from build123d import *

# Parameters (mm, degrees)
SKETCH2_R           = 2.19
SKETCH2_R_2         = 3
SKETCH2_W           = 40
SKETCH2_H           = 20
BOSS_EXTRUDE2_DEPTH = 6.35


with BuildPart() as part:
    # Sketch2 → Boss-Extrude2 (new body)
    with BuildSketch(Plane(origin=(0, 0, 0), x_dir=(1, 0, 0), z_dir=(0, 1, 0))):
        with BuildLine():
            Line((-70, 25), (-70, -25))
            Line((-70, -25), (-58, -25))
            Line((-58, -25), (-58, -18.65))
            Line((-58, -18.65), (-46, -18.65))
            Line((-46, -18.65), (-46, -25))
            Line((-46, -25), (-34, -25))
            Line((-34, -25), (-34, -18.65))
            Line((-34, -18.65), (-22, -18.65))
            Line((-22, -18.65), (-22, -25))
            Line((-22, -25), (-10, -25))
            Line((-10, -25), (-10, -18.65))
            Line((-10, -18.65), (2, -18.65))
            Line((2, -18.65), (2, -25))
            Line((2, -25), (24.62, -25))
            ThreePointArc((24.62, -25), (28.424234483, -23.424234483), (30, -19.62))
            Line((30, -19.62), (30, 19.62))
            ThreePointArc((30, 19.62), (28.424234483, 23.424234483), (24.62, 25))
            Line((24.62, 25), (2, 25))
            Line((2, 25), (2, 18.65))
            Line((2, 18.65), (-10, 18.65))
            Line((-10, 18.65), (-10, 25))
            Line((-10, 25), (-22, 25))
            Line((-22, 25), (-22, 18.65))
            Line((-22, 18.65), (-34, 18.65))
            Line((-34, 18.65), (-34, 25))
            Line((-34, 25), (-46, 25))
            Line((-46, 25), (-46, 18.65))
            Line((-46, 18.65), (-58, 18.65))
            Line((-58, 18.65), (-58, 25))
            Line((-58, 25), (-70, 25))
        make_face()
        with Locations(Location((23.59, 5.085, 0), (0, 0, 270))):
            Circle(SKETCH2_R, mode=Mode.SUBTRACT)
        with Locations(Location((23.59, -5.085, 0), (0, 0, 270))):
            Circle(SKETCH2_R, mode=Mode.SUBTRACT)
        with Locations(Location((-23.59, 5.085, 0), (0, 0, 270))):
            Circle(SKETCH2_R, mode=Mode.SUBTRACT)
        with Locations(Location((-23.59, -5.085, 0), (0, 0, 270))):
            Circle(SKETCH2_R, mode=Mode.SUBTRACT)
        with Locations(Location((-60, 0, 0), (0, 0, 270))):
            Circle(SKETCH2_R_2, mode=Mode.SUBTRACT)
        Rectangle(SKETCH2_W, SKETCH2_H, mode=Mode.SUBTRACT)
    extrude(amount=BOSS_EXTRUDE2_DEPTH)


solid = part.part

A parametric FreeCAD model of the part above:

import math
import FreeCAD as App
import Part
import Sketcher
Q = App.Units.Quantity


def add_polygon(sketch, points):
    """Adds a closed chain of lines whose ends are joined by coincident constraints."""
    first, n = sketch.GeometryCount, len(points)
    for a, b in zip(points, points[1:] + points[:1]):
        sketch.addGeometry(Part.LineSegment(App.Vector(*a, 0), App.Vector(*b, 0)), False)
    for i in range(n):
        sketch.addConstraint(Sketcher.Constraint("Coincident", first + i, 2, first + (i + 1) % n, 1))

doc = App.newDocument("Part")
body = doc.addObject("PartDesign::Body", "Body")

# Sketch on XZ plane
sketch1 = body.newObject("Sketcher::SketchObject", "Sketch")
sketch1.AttachmentSupport = (doc.getObject("XZ_Plane"), [""])
sketch1.MapMode = "FlatFace"
sketch1.addGeometry(Part.LineSegment(App.Vector(-70, -25, 0), App.Vector(-70, 25, 0)), False)  # 0
sketch1.addGeometry(Part.LineSegment(App.Vector(-70, 25, 0), App.Vector(-58, 25, 0)), False)  # 1
sketch1.addGeometry(Part.LineSegment(App.Vector(-58, 25, 0), App.Vector(-58, 18.6, 0)), False)  # 2
sketch1.addGeometry(Part.LineSegment(App.Vector(-58, 18.6, 0), App.Vector(-46, 18.6, 0)), False)  # 3
sketch1.addGeometry(Part.LineSegment(App.Vector(-46, 18.6, 0), App.Vector(-46, 25, 0)), False)  # 4
sketch1.addGeometry(Part.LineSegment(App.Vector(-46, 25, 0), App.Vector(-34, 25, 0)), False)  # 5
sketch1.addGeometry(Part.LineSegment(App.Vector(-34, 25, 0), App.Vector(-34, 18.6, 0)), False)  # 6
sketch1.addGeometry(Part.LineSegment(App.Vector(-34, 18.6, 0), App.Vector(-22, 18.6, 0)), False)  # 7
sketch1.addGeometry(Part.LineSegment(App.Vector(-22, 18.6, 0), App.Vector(-22, 25, 0)), False)  # 8
sketch1.addGeometry(Part.LineSegment(App.Vector(-22, 25, 0), App.Vector(-10, 25, 0)), False)  # 9
sketch1.addGeometry(Part.LineSegment(App.Vector(-10, 25, 0), App.Vector(-10, 18.6, 0)), False)  # 10
sketch1.addGeometry(Part.LineSegment(App.Vector(-10, 18.6, 0), App.Vector(2, 18.6, 0)), False)  # 11
sketch1.addGeometry(Part.LineSegment(App.Vector(2, 18.6, 0), App.Vector(2, 25, 0)), False)  # 12
sketch1.addGeometry(Part.LineSegment(App.Vector(2, 25, 0), App.Vector(24.6, 25, 0)), False)  # 13
sketch1.addGeometry(Part.ArcOfCircle(Part.Circle(App.Vector(24.6, 19.6, 0), App.Vector(0, 0, 1), 5.4), math.radians(0), math.radians(90)), False)  # 14
sketch1.addGeometry(Part.LineSegment(App.Vector(30, 19.6, 0), App.Vector(30, -19.6, 0)), False)  # 15
sketch1.addGeometry(Part.ArcOfCircle(Part.Circle(App.Vector(24.6, -19.6, 0), App.Vector(0, 0, 1), 5.4), math.radians(-90), math.radians(0)), False)  # 16
sketch1.addGeometry(Part.LineSegment(App.Vector(24.6, -25, 0), App.Vector(2, -25, 0)), False)  # 17
sketch1.addGeometry(Part.LineSegment(App.Vector(2, -25, 0), App.Vector(2, -18.6, 0)), False)  # 18
sketch1.addGeometry(Part.LineSegment(App.Vector(2, -18.6, 0), App.Vector(-10, -18.6, 0)), False)  # 19
sketch1.addGeometry(Part.LineSegment(App.Vector(-10, -18.6, 0), App.Vector(-10, -25, 0)), False)  # 20
sketch1.addGeometry(Part.LineSegment(App.Vector(-10, -25, 0), App.Vector(-22, -25, 0)), False)  # 21
sketch1.addGeometry(Part.LineSegment(App.Vector(-22, -25, 0), App.Vector(-22, -18.6, 0)), False)  # 22
sketch1.addGeometry(Part.LineSegment(App.Vector(-22, -18.6, 0), App.Vector(-34, -18.6, 0)), False)  # 23
sketch1.addGeometry(Part.LineSegment(App.Vector(-34, -18.6, 0), App.Vector(-34, -25, 0)), False)  # 24
sketch1.addGeometry(Part.LineSegment(App.Vector(-34, -25, 0), App.Vector(-46, -25, 0)), False)  # 25
sketch1.addGeometry(Part.LineSegment(App.Vector(-46, -25, 0), App.Vector(-46, -18.6, 0)), False)  # 26
sketch1.addGeometry(Part.LineSegment(App.Vector(-46, -18.6, 0), App.Vector(-58, -18.6, 0)), False)  # 27
sketch1.addGeometry(Part.LineSegment(App.Vector(-58, -18.6, 0), App.Vector(-58, -25, 0)), False)  # 28
sketch1.addGeometry(Part.LineSegment(App.Vector(-58, -25, 0), App.Vector(-70, -25, 0)), False)  # 29
sketch1.addGeometry(Part.Circle(App.Vector(-23.6, 5.1, 0), App.Vector(0, 0, 1), 2.2), False)  # 30
sketch1.addGeometry(Part.Circle(App.Vector(23.6, 5.1, 0), App.Vector(0, 0, 1), 2.2), False)  # 31
sketch1.addGeometry(Part.Circle(App.Vector(-60, 0, 0), App.Vector(0, 0, 1), 3), False)  # 32
sketch1.addGeometry(Part.Circle(App.Vector(-23.6, -5.1, 0), App.Vector(0, 0, 1), 2.2), False)  # 33
add_polygon(sketch1, [(20, 10), (-20, 10), (-20, -10), (20, -10)])  # lines 34-37
sketch1.addGeometry(Part.Circle(App.Vector(23.6, -5.1, 0), App.Vector(0, 0, 1), 2.2), False)  # 38
sketch1.addConstraint([
    Sketcher.Constraint("Coincident", 0, 2, 1, 1),
    Sketcher.Constraint("Coincident", 1, 2, 2, 1),
    Sketcher.Constraint("Coincident", 2, 2, 3, 1),
    Sketcher.Constraint("Coincident", 3, 2, 4, 1),
    Sketcher.Constraint("Coincident", 4, 2, 5, 1),
    Sketcher.Constraint("Coincident", 5, 2, 6, 1),
    Sketcher.Constraint("Coincident", 6, 2, 7, 1),
    Sketcher.Constraint("Coincident", 7, 2, 8, 1),
    Sketcher.Constraint("Coincident", 8, 2, 9, 1),
    Sketcher.Constraint("Coincident", 9, 2, 10, 1),
    Sketcher.Constraint("Coincident", 10, 2, 11, 1),
    Sketcher.Constraint("Coincident", 11, 2, 12, 1),
    Sketcher.Constraint("Coincident", 12, 2, 13, 1),
    Sketcher.Constraint("Tangent", 13, 2, 14, 2),
    Sketcher.Constraint("Tangent", 14, 1, 15, 1),
    Sketcher.Constraint("Tangent", 15, 2, 16, 2),
    Sketcher.Constraint("Tangent", 16, 1, 17, 1),
    Sketcher.Constraint("Coincident", 17, 2, 18, 1),
    Sketcher.Constraint("Coincident", 18, 2, 19, 1),
    Sketcher.Constraint("Coincident", 19, 2, 20, 1),
    Sketcher.Constraint("Coincident", 20, 2, 21, 1),
    Sketcher.Constraint("Coincident", 21, 2, 22, 1),
    Sketcher.Constraint("Coincident", 22, 2, 23, 1),
    Sketcher.Constraint("Coincident", 23, 2, 24, 1),
    Sketcher.Constraint("Coincident", 24, 2, 25, 1),
    Sketcher.Constraint("Coincident", 25, 2, 26, 1),
    Sketcher.Constraint("Coincident", 26, 2, 27, 1),
    Sketcher.Constraint("Coincident", 27, 2, 28, 1),
    Sketcher.Constraint("Coincident", 28, 2, 29, 1),
    Sketcher.Constraint("Coincident", 29, 2, 0, 1),
    Sketcher.Constraint("Vertical", 0),
    Sketcher.Constraint("Horizontal", 1),
    Sketcher.Constraint("Vertical", 2),
    Sketcher.Constraint("Horizontal", 3),
    Sketcher.Constraint("Vertical", 4),
    Sketcher.Constraint("Horizontal", 5),
    Sketcher.Constraint("Vertical", 6),
    Sketcher.Constraint("Horizontal", 7),
    Sketcher.Constraint("Vertical", 8),
    Sketcher.Constraint("Horizontal", 9),
    Sketcher.Constraint("Vertical", 10),
    Sketcher.Constraint("Horizontal", 11),
    Sketcher.Constraint("Vertical", 12),
    Sketcher.Constraint("Horizontal", 13),
    Sketcher.Constraint("Vertical", 15),
    Sketcher.Constraint("Horizontal", 17),
    Sketcher.Constraint("Vertical", 18),
    Sketcher.Constraint("Horizontal", 19),
    Sketcher.Constraint("Vertical", 20),
    Sketcher.Constraint("Horizontal", 21),
    Sketcher.Constraint("Vertical", 22),
    Sketcher.Constraint("Horizontal", 23),
    Sketcher.Constraint("Vertical", 24),
    Sketcher.Constraint("Horizontal", 25),
    Sketcher.Constraint("Vertical", 26),
    Sketcher.Constraint("Horizontal", 27),
    Sketcher.Constraint("Vertical", 28),
    Sketcher.Constraint("Horizontal", 29),
    Sketcher.Constraint("Horizontal", 34),
    Sketcher.Constraint("Vertical", 35),
    Sketcher.Constraint("Horizontal", 36),
    Sketcher.Constraint("Vertical", 37),
    Sketcher.Constraint("Equal", 14, 16),
    Sketcher.Constraint("Equal", 30, 31),
    Sketcher.Constraint("Equal", 31, 33),
    Sketcher.Constraint("Equal", 33, 38),
    Sketcher.Constraint("Symmetric", 31, 3, 33, 3, -1, 1),
    Sketcher.Constraint("Symmetric", 30, 3, 38, 3, -1, 1),
    Sketcher.Constraint("Symmetric", 34, 2, 36, 2, -1, 1),
    Sketcher.Constraint("Symmetric", 30, 3, 31, 3, -2),
    Sketcher.Constraint("Symmetric", 12, 2, 17, 2, -1),
    Sketcher.Constraint("Symmetric", 10, 2, 19, 2, -1),
    Sketcher.Constraint("Symmetric", 8, 2, 21, 2, -1),
    Sketcher.Constraint("Symmetric", 6, 2, 23, 2, -1),
    Sketcher.Constraint("Symmetric", 4, 2, 25, 2, -1),
    Sketcher.Constraint("Symmetric", 2, 2, 27, 2, -1),
    Sketcher.Constraint("PointOnObject", 32, 3, -1),
    Sketcher.Constraint("Horizontal", 1, 2, 4, 2),
    Sketcher.Constraint("Horizontal", 3, 2, 6, 2),
    Sketcher.Constraint("Horizontal", 5, 2, 8, 2),
    Sketcher.Constraint("Horizontal", 7, 2, 10, 2),
    Sketcher.Constraint("Horizontal", 9, 2, 12, 2),
    Sketcher.Constraint("Horizontal", 25, 2, 28, 2),
    Sketcher.Constraint("Equal", 1, 3),
    Sketcher.Constraint("Equal", 3, 5),
    Sketcher.Constraint("Equal", 5, 7),
    Sketcher.Constraint("Equal", 7, 9),
    Sketcher.Constraint("Equal", 9, 11),
    Sketcher.Constraint("Diameter", 32, Q("6 mm")),
    Sketcher.Constraint("Diameter", 30, Q("4.38 mm")),
    Sketcher.Constraint("DistanceX", 1, 1, 1, 2, Q("12 mm")),
    Sketcher.Constraint("DistanceX", 34, 2, 34, 1, Q("40 mm")),
    Sketcher.Constraint("DistanceY", 0, 1, 0, 2, Q("50 mm")),
    Sketcher.Constraint("DistanceY", 35, 2, 35, 1, Q("20 mm")),
    Sketcher.Constraint("Radius", 14, Q("5.38 mm")),
    Sketcher.Constraint("DistanceX", 32, 3, -1, 1, Q("60 mm")),
    Sketcher.Constraint("DistanceX", 0, 2, -1, 1, Q("70 mm")),
    Sketcher.Constraint("DistanceX", -1, 1, 14, 1, Q("30 mm")),
    Sketcher.Constraint("DistanceY", 2, 2, 2, 1, Q("6.35 mm")),
    Sketcher.Constraint("DistanceX", 30, 3, -1, 1, Q("23.59 mm")),
    Sketcher.Constraint("DistanceY", 33, 3, 30, 3, Q("10.17 mm")),
])
pad1 = body.newObject("PartDesign::Pad", "Pad")
pad1.Profile = sketch1
pad1.Length = 6.35
pad1.Reversed = True

doc.recompute()
